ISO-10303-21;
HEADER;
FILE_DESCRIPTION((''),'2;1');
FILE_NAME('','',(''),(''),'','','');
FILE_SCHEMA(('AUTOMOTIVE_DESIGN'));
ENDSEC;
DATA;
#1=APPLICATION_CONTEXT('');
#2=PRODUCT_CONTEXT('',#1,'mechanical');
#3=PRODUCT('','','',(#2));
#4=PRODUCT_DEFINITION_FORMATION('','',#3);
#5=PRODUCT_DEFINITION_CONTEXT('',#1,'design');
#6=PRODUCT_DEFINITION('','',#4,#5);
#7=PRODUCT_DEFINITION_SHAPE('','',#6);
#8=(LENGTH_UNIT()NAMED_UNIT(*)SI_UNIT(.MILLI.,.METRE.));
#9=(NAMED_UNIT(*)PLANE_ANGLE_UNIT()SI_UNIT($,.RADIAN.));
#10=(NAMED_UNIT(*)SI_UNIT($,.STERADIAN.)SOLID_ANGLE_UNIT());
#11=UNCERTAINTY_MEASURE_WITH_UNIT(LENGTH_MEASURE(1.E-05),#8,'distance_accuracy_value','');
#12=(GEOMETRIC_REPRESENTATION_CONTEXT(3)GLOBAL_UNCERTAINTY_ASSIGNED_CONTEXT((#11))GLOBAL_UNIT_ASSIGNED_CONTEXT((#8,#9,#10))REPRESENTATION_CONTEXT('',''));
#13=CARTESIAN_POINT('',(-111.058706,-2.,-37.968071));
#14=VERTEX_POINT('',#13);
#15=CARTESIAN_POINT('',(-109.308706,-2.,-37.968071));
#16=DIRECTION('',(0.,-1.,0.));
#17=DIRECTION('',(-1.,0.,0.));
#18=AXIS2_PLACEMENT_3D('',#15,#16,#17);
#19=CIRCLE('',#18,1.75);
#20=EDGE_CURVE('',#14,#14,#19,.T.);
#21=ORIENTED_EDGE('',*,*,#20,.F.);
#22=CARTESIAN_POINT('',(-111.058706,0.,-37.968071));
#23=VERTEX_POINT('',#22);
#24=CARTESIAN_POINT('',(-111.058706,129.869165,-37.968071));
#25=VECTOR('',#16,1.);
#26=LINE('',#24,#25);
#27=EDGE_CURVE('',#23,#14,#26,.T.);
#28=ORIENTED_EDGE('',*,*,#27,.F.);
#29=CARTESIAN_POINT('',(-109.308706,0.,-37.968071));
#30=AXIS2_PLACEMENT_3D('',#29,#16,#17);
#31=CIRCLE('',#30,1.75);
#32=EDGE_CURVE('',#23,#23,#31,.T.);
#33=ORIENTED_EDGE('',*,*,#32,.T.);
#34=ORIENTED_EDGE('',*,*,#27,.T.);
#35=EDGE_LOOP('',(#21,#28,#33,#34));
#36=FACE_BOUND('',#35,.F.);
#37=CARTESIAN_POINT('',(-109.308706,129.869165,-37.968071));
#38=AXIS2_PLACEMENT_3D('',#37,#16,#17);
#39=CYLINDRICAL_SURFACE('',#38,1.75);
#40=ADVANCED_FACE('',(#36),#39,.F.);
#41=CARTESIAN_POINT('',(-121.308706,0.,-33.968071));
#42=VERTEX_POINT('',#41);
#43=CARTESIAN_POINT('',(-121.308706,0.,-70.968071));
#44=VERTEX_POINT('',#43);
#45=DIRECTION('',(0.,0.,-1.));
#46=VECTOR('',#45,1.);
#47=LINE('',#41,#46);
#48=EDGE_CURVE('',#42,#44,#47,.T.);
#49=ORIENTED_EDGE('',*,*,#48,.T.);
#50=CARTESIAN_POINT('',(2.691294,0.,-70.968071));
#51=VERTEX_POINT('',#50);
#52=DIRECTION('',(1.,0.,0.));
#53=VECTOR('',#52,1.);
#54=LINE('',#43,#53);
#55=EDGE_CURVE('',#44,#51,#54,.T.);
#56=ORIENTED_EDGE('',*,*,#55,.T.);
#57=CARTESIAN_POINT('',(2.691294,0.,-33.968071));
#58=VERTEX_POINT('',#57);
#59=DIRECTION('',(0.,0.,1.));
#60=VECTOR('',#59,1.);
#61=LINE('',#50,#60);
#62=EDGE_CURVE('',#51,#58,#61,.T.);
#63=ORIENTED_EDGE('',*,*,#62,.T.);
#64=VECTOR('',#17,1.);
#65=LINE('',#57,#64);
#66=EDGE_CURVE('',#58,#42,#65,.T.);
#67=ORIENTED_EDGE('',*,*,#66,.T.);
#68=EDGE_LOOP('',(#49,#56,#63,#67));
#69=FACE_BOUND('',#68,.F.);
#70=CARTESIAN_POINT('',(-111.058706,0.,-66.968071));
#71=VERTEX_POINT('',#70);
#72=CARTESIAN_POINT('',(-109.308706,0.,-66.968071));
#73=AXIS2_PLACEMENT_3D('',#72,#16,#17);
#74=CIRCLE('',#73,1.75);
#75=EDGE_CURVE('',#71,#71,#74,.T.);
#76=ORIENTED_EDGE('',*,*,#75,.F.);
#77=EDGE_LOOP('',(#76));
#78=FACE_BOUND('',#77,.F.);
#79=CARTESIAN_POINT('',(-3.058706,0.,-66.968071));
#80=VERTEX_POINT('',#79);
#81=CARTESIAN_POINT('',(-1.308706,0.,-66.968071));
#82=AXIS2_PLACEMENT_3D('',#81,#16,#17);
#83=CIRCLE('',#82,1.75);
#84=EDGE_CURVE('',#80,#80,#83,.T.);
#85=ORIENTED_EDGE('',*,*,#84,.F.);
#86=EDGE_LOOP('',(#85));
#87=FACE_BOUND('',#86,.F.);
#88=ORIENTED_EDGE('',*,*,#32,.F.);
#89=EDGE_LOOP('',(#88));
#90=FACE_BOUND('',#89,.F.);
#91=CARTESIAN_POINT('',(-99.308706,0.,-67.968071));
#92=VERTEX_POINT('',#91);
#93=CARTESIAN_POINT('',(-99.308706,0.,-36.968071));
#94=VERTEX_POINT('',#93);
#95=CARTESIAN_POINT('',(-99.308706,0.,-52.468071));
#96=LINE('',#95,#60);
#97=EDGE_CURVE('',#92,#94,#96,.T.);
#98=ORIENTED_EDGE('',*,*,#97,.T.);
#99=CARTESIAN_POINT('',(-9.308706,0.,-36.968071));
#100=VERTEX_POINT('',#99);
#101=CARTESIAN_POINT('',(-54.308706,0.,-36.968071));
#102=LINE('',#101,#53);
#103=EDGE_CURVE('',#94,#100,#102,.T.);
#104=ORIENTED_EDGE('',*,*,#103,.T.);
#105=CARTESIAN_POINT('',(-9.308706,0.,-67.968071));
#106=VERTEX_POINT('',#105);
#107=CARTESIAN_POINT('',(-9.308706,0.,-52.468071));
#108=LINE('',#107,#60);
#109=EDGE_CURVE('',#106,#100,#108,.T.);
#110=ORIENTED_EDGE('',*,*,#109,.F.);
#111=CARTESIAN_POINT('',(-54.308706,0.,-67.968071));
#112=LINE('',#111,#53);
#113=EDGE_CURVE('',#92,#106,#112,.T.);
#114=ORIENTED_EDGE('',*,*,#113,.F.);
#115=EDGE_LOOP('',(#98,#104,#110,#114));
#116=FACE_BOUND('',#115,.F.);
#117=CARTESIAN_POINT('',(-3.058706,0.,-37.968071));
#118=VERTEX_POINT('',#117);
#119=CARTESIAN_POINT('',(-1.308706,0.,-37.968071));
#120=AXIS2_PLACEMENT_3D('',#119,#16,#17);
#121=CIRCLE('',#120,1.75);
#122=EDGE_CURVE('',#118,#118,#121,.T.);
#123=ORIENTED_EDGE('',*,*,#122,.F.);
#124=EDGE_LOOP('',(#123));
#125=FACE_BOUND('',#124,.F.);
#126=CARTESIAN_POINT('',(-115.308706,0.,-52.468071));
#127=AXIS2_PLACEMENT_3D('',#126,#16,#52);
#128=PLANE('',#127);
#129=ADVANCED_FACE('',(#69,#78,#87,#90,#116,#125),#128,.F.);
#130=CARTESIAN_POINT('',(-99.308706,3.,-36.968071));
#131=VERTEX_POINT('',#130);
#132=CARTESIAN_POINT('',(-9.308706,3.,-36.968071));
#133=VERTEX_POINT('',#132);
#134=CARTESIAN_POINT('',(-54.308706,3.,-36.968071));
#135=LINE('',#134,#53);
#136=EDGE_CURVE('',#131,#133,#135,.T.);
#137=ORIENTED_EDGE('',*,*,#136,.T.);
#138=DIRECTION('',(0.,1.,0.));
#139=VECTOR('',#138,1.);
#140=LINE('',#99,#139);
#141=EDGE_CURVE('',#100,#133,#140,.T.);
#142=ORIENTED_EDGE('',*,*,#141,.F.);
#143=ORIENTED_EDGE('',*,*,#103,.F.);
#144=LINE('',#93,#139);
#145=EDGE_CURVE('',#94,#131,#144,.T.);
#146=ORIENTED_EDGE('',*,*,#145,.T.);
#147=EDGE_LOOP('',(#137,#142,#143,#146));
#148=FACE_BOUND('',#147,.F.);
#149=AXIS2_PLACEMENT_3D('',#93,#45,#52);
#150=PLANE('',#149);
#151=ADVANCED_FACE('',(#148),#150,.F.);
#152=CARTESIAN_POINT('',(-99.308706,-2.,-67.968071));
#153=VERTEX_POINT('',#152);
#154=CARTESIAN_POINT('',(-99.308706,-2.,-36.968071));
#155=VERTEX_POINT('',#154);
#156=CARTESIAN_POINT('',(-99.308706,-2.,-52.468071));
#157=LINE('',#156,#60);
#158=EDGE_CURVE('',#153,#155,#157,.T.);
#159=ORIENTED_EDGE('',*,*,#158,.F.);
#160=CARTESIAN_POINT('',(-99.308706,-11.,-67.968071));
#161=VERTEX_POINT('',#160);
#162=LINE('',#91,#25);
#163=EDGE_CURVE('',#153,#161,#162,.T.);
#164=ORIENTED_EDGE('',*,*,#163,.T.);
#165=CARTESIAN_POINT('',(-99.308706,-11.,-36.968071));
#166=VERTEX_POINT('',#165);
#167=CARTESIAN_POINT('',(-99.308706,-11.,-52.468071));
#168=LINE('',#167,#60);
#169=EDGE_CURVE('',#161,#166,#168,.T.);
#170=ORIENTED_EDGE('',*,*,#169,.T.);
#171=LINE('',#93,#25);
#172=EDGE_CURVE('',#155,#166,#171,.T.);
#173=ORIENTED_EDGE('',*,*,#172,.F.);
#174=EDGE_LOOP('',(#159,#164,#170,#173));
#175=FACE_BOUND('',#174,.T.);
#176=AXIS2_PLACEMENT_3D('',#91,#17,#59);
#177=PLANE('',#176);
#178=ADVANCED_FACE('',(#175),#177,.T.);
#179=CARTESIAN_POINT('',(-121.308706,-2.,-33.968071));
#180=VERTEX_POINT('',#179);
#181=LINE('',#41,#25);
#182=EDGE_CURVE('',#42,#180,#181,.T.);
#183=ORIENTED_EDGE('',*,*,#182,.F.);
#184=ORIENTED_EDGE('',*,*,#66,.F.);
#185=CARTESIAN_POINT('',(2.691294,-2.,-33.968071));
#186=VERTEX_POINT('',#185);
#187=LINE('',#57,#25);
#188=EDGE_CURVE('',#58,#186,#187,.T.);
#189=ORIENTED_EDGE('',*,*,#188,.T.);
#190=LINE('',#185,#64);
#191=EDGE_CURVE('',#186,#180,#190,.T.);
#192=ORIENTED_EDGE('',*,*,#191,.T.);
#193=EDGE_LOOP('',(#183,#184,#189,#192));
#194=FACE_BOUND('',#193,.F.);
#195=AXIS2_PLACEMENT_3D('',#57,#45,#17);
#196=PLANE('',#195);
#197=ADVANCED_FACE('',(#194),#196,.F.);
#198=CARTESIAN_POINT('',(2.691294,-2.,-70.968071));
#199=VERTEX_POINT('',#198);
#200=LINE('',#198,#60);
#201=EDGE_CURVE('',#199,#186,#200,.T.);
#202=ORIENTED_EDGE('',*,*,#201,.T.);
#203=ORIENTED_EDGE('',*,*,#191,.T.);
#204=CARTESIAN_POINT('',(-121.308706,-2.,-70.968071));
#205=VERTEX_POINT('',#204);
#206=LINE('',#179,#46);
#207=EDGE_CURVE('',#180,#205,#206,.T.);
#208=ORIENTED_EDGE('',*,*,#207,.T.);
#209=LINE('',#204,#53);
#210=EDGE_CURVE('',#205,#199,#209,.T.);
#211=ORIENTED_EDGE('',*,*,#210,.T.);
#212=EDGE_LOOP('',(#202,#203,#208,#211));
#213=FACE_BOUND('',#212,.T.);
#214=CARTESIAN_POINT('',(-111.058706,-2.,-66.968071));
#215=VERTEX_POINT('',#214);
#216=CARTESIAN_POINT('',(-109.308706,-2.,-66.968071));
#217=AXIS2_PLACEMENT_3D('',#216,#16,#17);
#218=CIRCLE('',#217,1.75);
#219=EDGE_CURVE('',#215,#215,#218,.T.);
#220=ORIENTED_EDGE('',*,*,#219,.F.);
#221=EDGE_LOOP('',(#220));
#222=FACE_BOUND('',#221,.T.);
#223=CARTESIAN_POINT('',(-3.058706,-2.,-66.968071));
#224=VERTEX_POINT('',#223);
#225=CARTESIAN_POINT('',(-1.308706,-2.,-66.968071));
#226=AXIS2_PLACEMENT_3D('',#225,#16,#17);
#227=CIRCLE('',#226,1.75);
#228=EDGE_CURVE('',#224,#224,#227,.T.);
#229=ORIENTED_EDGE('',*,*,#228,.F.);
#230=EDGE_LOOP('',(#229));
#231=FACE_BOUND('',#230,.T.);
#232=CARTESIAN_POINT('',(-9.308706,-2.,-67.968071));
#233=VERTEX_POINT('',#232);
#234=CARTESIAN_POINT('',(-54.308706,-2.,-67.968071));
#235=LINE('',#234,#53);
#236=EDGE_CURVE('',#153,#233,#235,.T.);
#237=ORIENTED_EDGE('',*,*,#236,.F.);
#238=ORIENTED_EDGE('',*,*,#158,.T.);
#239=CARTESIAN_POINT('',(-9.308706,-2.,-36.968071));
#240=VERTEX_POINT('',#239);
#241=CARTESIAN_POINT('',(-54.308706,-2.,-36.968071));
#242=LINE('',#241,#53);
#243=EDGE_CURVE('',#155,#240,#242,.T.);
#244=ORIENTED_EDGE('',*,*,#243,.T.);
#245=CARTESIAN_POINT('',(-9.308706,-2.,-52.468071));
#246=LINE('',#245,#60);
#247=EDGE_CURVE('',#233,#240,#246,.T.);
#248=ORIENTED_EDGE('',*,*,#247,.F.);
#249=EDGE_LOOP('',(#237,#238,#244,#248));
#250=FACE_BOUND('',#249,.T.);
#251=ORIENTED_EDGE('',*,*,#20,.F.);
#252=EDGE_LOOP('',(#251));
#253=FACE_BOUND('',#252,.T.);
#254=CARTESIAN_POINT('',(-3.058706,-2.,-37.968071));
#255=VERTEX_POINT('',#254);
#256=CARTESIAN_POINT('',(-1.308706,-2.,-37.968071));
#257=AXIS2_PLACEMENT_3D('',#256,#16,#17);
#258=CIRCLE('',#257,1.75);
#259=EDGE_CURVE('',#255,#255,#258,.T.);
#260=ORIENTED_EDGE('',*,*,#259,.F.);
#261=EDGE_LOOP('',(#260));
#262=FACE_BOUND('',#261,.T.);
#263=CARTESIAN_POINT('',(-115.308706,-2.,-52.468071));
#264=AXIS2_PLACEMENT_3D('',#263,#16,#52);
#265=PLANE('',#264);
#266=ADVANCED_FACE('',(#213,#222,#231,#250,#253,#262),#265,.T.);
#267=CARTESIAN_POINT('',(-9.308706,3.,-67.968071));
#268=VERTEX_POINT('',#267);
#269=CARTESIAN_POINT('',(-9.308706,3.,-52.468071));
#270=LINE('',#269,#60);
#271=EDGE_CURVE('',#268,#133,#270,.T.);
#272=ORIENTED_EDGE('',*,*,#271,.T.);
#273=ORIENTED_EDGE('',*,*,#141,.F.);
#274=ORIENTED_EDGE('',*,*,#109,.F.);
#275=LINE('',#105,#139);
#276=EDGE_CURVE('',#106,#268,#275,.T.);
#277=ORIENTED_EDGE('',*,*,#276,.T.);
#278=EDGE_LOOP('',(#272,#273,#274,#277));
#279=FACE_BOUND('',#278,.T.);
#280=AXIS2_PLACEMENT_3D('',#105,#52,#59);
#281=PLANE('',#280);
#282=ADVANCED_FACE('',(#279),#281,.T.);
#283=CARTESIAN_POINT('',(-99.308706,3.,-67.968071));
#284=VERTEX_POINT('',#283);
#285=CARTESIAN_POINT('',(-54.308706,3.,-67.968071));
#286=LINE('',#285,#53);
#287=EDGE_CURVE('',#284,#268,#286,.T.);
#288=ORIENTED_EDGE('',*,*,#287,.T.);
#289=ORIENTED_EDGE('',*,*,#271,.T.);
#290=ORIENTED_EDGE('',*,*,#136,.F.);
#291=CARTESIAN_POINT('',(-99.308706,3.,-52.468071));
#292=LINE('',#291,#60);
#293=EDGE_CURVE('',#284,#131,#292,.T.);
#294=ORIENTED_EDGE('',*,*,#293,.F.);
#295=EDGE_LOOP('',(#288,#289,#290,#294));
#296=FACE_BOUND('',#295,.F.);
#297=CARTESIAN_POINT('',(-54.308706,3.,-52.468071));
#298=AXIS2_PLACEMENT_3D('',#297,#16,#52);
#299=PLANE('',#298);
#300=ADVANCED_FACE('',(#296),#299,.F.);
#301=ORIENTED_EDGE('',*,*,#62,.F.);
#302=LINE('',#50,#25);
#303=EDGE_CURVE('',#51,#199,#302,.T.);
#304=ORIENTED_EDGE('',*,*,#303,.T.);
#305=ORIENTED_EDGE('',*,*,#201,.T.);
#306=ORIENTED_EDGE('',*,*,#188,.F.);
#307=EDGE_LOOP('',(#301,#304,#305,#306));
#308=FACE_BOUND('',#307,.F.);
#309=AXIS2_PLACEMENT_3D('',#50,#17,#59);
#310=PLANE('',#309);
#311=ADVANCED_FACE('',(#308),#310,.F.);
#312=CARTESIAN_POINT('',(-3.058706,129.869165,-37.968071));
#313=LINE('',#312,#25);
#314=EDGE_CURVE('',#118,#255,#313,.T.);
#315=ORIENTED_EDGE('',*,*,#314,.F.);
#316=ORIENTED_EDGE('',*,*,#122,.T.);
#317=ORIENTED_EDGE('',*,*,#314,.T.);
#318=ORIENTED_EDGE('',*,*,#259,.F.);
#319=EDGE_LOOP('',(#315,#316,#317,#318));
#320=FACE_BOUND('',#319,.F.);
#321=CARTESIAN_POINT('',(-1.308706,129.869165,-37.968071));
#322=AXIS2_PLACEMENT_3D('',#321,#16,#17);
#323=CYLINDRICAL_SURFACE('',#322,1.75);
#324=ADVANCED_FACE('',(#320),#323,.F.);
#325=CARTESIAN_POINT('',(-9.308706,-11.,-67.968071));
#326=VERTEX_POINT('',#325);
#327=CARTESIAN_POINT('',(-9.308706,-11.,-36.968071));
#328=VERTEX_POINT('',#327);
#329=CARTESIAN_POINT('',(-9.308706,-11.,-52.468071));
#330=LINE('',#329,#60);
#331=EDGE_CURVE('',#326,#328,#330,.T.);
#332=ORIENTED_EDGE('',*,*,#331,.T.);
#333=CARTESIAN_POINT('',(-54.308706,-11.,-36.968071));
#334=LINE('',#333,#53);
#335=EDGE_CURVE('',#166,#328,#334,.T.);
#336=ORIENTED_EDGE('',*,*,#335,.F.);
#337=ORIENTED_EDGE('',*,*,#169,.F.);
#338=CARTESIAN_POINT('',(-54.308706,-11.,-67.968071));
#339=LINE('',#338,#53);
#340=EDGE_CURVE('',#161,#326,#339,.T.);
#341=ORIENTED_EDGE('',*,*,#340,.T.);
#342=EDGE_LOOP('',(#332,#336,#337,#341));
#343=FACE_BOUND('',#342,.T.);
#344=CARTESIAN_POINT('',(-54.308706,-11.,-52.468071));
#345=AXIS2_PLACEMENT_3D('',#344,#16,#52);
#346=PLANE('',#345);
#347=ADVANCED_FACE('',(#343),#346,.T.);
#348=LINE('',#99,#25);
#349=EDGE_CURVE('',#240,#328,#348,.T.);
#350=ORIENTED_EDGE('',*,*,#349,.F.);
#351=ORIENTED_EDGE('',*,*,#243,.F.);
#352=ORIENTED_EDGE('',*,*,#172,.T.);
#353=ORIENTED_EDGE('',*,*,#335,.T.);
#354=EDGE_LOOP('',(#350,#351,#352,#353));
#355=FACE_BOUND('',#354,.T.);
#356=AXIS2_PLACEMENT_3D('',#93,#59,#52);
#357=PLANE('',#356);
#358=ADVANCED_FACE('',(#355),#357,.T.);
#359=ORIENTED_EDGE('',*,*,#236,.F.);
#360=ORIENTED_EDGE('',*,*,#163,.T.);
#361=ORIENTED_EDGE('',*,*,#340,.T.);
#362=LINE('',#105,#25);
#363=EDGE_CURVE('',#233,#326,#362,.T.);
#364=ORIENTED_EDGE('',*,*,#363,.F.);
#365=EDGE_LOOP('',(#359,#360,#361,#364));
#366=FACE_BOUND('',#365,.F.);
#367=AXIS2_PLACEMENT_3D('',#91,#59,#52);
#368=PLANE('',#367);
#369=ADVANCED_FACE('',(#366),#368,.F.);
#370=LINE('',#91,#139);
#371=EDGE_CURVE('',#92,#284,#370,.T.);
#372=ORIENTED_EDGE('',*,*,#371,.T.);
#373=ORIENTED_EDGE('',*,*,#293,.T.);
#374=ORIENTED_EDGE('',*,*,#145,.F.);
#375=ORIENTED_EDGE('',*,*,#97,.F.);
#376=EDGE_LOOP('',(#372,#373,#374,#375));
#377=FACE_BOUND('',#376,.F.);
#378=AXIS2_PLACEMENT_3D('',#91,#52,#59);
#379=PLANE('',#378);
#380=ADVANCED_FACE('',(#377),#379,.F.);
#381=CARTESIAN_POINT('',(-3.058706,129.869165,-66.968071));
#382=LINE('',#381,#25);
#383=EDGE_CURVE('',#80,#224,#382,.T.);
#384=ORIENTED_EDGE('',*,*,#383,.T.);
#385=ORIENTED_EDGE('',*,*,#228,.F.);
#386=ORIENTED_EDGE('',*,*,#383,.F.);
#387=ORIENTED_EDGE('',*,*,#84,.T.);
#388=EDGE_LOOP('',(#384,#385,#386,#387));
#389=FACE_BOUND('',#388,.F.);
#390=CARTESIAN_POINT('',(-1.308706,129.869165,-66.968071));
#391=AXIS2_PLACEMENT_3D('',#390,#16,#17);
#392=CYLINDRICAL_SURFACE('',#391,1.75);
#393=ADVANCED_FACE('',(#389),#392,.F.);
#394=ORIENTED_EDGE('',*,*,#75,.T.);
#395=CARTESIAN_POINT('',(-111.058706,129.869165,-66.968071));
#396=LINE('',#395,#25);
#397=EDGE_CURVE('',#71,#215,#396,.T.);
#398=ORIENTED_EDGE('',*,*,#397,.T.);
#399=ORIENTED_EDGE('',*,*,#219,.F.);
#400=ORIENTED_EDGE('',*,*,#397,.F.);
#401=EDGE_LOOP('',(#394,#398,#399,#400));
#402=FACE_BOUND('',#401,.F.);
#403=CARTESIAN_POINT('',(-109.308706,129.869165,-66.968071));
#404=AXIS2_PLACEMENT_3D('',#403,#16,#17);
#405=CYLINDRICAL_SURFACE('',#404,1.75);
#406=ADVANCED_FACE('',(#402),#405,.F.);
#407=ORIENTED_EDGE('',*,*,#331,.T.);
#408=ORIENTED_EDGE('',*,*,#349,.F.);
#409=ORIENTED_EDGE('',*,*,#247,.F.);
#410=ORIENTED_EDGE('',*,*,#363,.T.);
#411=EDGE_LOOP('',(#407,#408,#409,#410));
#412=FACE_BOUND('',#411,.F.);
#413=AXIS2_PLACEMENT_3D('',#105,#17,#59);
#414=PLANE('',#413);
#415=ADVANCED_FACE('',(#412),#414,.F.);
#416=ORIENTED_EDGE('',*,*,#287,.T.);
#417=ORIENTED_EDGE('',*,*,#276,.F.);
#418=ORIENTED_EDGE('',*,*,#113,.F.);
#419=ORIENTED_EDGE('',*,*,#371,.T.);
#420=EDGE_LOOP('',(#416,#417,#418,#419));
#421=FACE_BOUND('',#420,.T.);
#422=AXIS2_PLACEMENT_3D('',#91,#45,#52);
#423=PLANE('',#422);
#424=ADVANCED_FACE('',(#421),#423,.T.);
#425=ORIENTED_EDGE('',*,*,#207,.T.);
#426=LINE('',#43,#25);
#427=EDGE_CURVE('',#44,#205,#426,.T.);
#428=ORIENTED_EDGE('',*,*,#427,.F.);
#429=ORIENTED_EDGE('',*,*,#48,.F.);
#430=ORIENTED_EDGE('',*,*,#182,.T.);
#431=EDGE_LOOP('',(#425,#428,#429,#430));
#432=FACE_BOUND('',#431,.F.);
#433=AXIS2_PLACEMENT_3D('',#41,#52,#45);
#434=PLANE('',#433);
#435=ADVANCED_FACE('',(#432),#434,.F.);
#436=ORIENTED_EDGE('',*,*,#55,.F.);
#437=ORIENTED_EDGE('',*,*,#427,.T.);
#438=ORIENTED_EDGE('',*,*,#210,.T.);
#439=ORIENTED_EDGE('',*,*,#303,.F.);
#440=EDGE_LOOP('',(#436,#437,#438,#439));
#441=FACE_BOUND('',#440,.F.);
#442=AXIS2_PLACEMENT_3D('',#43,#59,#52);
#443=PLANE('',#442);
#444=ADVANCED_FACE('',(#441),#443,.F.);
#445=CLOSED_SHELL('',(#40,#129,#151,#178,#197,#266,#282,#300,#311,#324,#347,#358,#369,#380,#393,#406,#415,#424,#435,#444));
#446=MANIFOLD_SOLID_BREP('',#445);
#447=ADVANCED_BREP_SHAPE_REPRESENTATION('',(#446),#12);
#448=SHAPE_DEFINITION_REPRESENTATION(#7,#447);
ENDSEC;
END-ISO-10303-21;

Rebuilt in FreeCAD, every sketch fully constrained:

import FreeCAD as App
import Part
import Sketcher

V = App.Vector


def add_polygon(sketch, points):
    """Adds a closed chain of lines whose ends are joined by coincident constraints."""
    first, n = sketch.GeometryCount, len(points)
    for a, b in zip(points, points[1:] + points[:1]):
        sketch.addGeometry(Part.LineSegment(App.Vector(*a, 0), App.Vector(*b, 0)), False)
    for i in range(n):
        sketch.addConstraint(Sketcher.Constraint("Coincident", first + i, 2, first + (i + 1) % n, 1))

doc = App.newDocument("Part")
body = doc.addObject("PartDesign::Body", "Body")

# Sketch on XZ plane
sketch1 = body.newObject("Sketcher::SketchObject", "Sketch")
sketch1.AttachmentSupport = (doc.getObject("XZ_Plane"), [""])
sketch1.MapMode = "FlatFace"
add_polygon(sketch1, [(-121, -34), (-121, -71), (3, -71), (3, -34)])  # lines 0-3
add_polygon(sketch1, [(-9, -68), (-99, -68), (-99, -37), (-9, -37)])  # lines 4-7
sketch1.addConstraint(Sketcher.Constraint("Vertical", 0))
sketch1.addConstraint(Sketcher.Constraint("Horizontal", 1))
sketch1.addConstraint(Sketcher.Constraint("Vertical", 2))
sketch1.addConstraint(Sketcher.Constraint("Horizontal", 3))
sketch1.addConstraint(Sketcher.Constraint("Horizontal", 4))
sketch1.addConstraint(Sketcher.Constraint("Vertical", 5))
sketch1.addConstraint(Sketcher.Constraint("Horizontal", 6))
sketch1.addConstraint(Sketcher.Constraint("Vertical", 7))
sketch1.addConstraint(Sketcher.Constraint("DistanceX", 1, 1, 1, 2, 124.0))
sketch1.addConstraint(Sketcher.Constraint("DistanceX", 4, 2, 4, 1, 90.0))
sketch1.addConstraint(Sketcher.Constraint("DistanceY", 0, 2, 0, 1, 37.0))
sketch1.addConstraint(Sketcher.Constraint("DistanceY", 5, 1, 5, 2, 31.0))
sketch1.addConstraint(Sketcher.Constraint("DistanceX", 0, 2, 4, 2, 22.0))
sketch1.addConstraint(Sketcher.Constraint("DistanceY", 0, 2, 4, 2, 3.0))
sketch1.addConstraint(Sketcher.Constraint("DistanceY", 0, 2, -1, 1, 70.968071))
sketch1.addConstraint(Sketcher.Constraint("DistanceX", 0, 2, -1, 1, 121.308706))
pad1 = body.newObject("PartDesign::Pad", "Pad")
pad1.Profile = sketch1
pad1.Length = 2

# Sketch on XZ plane
sketch2 = body.newObject("Sketcher::SketchObject", "Sketch001")
sketch2.AttachmentSupport = (doc.getObject("XZ_Plane"), [""])
sketch2.MapMode = "FlatFace"
add_polygon(sketch2, [(-99, -37), (-99, -68), (-9, -68), (-9, -37)])  # lines 0-3
sketch2.addConstraint(Sketcher.Constraint("Vertical", 0))
sketch2.addConstraint(Sketcher.Constraint("Horizontal", 1))
sketch2.addConstraint(Sketcher.Constraint("Vertical", 2))
sketch2.addConstraint(Sketcher.Constraint("Horizontal", 3))
sketch2.addConstraint(Sketcher.Constraint("DistanceX", 1, 1, 1, 2, 90.0))
sketch2.addConstraint(Sketcher.Constraint("DistanceY", 0, 2, 0, 1, 31.0))
sketch2.addConstraint(Sketcher.Constraint("DistanceY", 0, 2, -1, 1, 67.968071))
sketch2.addConstraint(Sketcher.Constraint("DistanceX", 0, 2, -1, 1, 99.308706))
pad2 = body.newObject("PartDesign::Pad", "Pad001")
pad2.Profile = sketch2
pad2.Length = 11

# Sketch on XZ plane
sketch3 = body.newObject("Sketcher::SketchObject", "Sketch002")
sketch3.AttachmentSupport = (doc.getObject("XZ_Plane"), [""])
sketch3.MapMode = "FlatFace"
sketch3.addGeometry(Part.Circle(V(-109.3, -38, 0), V(0, 0, 1), 1.8), False)
sketch3.addGeometry(Part.Circle(V(-109.3, -67, 0), V(0, 0, 1), 1.8), False)
sketch3.addGeometry(Part.Circle(V(-1.3, -38, 0), V(0, 0, 1), 1.8), False)
sketch3.addGeometry(Part.Circle(V(-1.3, -67, 0), V(0, 0, 1), 1.8), False)
sketch3.addConstraint(Sketcher.Constraint("Equal", 0, 1))
sketch3.addConstraint(Sketcher.Constraint("Equal", 1, 2))
sketch3.addConstraint(Sketcher.Constraint("Equal", 2, 3))
sketch3.addConstraint(Sketcher.Constraint("Horizontal", 0, 3, 2, 3))
sketch3.addConstraint(Sketcher.Constraint("Horizontal", 1, 3, 3, 3))
sketch3.addConstraint(Sketcher.Constraint("Vertical", 0, 3, 1, 3))
sketch3.addConstraint(Sketcher.Constraint("Vertical", 2, 3, 3, 3))
sketch3.addConstraint(Sketcher.Constraint("Diameter", 0, 3.5))
sketch3.addConstraint(Sketcher.Constraint("DistanceY", 1, 3, 0, 3, 29.0))
sketch3.addConstraint(Sketcher.Constraint("DistanceX", 0, 3, 2, 3, 108.0))
sketch3.addConstraint(Sketcher.Constraint("DistanceY", 0, 3, -1, 1, 37.968071))
sketch3.addConstraint(Sketcher.Constraint("DistanceX", 0, 3, -1, 1, 109.308706))
doc.recompute()
hole = body.newObject("PartDesign::Hole", "Hole")
hole.Profile = sketch3
hole.ThreadType = "None"
hole.Diameter = 3.5
hole.DepthType = "ThroughAll"
hole.Reversed = True

# Sketch on XZ plane
sketch4 = body.newObject("Sketcher::SketchObject", "Sketch003")
sketch4.AttachmentSupport = (doc.getObject("XZ_Plane"), [""])
sketch4.MapMode = "FlatFace"
add_polygon(sketch4, [(-99, -37), (-99, -68), (-9, -68), (-9, -37)])  # lines 0-3
sketch4.addConstraint(Sketcher.Constraint("Vertical", 0))
sketch4.addConstraint(Sketcher.Constraint("Horizontal", 1))
sketch4.addConstraint(Sketcher.Constraint("Vertical", 2))
sketch4.addConstraint(Sketcher.Constraint("Horizontal", 3))
sketch4.addConstraint(Sketcher.Constraint("DistanceX", 1, 1, 1, 2, 90.0))
sketch4.addConstraint(Sketcher.Constraint("DistanceY", 0, 2, 0, 1, 31.0))
sketch4.addConstraint(Sketcher.Constraint("DistanceY", 0, 2, -1, 1, 67.968071))
sketch4.addConstraint(Sketcher.Constraint("DistanceX", 0, 2, -1, 1, 99.308706))
pad3 = body.newObject("PartDesign::Pad", "Pad002")
pad3.Profile = sketch4
pad3.Length = 3
pad3.Reversed = True

doc.recompute()
